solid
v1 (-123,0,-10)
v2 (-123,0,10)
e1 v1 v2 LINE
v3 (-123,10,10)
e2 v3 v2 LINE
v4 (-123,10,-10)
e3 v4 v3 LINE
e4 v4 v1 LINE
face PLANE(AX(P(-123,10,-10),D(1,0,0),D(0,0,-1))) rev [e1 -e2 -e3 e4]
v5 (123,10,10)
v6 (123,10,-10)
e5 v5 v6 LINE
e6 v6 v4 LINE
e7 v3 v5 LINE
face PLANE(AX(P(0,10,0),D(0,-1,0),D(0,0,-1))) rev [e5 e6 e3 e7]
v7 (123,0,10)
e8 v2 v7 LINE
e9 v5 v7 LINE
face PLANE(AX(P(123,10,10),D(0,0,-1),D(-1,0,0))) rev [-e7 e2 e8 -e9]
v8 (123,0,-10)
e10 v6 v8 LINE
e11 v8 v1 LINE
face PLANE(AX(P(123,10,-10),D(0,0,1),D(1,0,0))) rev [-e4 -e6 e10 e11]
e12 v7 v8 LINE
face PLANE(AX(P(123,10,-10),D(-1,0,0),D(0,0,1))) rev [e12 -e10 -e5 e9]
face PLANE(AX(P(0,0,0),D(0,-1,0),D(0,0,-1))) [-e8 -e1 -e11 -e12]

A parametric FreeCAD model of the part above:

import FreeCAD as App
import Part
import Sketcher
Q = App.Units.Quantity


def add_polygon(sketch, points):
    """Adds a closed chain of lines whose ends are joined by coincident constraints."""
    first, n = sketch.GeometryCount, len(points)
    for a, b in zip(points, points[1:] + points[:1]):
        sketch.addGeometry(Part.LineSegment(App.Vector(*a, 0), App.Vector(*b, 0)), False)
    for i in range(n):
        sketch.addConstraint(Sketcher.Constraint("Coincident", first + i, 2, first + (i + 1) % n, 1))

doc = App.newDocument("Part")
params = doc.addObject("Spreadsheet::Sheet", "Params")
for row, (alias, value) in enumerate([
    ("sketch1_width", "246 mm"),
    ("sketch1_height", "20 mm"),
    ("pad1_length", "10 mm"),
], start=1):
    params.set(f"A{row}", alias)
    params.set(f"B{row}", "=" + value)
    params.setAlias(f"B{row}", alias)

body = doc.addObject("PartDesign::Body", "Body")

# Sketch on XZ plane
sketch1 = doc.addObject("Sketcher::SketchObject", "Sketch")
body.addObject(sketch1)
sketch1.AttachmentSupport = (doc.XZ_Plane, [""])
sketch1.MapMode = "FlatFace"
add_polygon(sketch1, [(-123, -10), (-123, 10), (123, 10), (123, -10)])  # lines 0-3
sketch1.addConstraint(Sketcher.Constraint("Vertical", 0))
sketch1.addConstraint(Sketcher.Constraint("Horizontal", 1))
sketch1.addConstraint(Sketcher.Constraint("Vertical", 2))
sketch1.addConstraint(Sketcher.Constraint("Horizontal", 3))
sketch1.addConstraint(Sketcher.Constraint("Symmetric", 0, 2, 2, 2, -1, 1))
sketch1.addConstraint(Sketcher.Constraint("DistanceX", 1, 1, 1, 2, Q("246 mm")))
sketch1.addConstraint(Sketcher.Constraint("DistanceY", 0, 1, 0, 2, Q("20 mm")))
sketch1.setExpression("Constraints[9]", "Params.sketch1_width")
sketch1.setExpression("Constraints[10]", "Params.sketch1_height")
pad1 = doc.addObject("PartDesign::Pad", "Pad")
body.addObject(pad1)
pad1.Profile = sketch1
pad1.setExpression("Length", "Params.pad1_length")
pad1.Reversed = True

doc.recompute()
